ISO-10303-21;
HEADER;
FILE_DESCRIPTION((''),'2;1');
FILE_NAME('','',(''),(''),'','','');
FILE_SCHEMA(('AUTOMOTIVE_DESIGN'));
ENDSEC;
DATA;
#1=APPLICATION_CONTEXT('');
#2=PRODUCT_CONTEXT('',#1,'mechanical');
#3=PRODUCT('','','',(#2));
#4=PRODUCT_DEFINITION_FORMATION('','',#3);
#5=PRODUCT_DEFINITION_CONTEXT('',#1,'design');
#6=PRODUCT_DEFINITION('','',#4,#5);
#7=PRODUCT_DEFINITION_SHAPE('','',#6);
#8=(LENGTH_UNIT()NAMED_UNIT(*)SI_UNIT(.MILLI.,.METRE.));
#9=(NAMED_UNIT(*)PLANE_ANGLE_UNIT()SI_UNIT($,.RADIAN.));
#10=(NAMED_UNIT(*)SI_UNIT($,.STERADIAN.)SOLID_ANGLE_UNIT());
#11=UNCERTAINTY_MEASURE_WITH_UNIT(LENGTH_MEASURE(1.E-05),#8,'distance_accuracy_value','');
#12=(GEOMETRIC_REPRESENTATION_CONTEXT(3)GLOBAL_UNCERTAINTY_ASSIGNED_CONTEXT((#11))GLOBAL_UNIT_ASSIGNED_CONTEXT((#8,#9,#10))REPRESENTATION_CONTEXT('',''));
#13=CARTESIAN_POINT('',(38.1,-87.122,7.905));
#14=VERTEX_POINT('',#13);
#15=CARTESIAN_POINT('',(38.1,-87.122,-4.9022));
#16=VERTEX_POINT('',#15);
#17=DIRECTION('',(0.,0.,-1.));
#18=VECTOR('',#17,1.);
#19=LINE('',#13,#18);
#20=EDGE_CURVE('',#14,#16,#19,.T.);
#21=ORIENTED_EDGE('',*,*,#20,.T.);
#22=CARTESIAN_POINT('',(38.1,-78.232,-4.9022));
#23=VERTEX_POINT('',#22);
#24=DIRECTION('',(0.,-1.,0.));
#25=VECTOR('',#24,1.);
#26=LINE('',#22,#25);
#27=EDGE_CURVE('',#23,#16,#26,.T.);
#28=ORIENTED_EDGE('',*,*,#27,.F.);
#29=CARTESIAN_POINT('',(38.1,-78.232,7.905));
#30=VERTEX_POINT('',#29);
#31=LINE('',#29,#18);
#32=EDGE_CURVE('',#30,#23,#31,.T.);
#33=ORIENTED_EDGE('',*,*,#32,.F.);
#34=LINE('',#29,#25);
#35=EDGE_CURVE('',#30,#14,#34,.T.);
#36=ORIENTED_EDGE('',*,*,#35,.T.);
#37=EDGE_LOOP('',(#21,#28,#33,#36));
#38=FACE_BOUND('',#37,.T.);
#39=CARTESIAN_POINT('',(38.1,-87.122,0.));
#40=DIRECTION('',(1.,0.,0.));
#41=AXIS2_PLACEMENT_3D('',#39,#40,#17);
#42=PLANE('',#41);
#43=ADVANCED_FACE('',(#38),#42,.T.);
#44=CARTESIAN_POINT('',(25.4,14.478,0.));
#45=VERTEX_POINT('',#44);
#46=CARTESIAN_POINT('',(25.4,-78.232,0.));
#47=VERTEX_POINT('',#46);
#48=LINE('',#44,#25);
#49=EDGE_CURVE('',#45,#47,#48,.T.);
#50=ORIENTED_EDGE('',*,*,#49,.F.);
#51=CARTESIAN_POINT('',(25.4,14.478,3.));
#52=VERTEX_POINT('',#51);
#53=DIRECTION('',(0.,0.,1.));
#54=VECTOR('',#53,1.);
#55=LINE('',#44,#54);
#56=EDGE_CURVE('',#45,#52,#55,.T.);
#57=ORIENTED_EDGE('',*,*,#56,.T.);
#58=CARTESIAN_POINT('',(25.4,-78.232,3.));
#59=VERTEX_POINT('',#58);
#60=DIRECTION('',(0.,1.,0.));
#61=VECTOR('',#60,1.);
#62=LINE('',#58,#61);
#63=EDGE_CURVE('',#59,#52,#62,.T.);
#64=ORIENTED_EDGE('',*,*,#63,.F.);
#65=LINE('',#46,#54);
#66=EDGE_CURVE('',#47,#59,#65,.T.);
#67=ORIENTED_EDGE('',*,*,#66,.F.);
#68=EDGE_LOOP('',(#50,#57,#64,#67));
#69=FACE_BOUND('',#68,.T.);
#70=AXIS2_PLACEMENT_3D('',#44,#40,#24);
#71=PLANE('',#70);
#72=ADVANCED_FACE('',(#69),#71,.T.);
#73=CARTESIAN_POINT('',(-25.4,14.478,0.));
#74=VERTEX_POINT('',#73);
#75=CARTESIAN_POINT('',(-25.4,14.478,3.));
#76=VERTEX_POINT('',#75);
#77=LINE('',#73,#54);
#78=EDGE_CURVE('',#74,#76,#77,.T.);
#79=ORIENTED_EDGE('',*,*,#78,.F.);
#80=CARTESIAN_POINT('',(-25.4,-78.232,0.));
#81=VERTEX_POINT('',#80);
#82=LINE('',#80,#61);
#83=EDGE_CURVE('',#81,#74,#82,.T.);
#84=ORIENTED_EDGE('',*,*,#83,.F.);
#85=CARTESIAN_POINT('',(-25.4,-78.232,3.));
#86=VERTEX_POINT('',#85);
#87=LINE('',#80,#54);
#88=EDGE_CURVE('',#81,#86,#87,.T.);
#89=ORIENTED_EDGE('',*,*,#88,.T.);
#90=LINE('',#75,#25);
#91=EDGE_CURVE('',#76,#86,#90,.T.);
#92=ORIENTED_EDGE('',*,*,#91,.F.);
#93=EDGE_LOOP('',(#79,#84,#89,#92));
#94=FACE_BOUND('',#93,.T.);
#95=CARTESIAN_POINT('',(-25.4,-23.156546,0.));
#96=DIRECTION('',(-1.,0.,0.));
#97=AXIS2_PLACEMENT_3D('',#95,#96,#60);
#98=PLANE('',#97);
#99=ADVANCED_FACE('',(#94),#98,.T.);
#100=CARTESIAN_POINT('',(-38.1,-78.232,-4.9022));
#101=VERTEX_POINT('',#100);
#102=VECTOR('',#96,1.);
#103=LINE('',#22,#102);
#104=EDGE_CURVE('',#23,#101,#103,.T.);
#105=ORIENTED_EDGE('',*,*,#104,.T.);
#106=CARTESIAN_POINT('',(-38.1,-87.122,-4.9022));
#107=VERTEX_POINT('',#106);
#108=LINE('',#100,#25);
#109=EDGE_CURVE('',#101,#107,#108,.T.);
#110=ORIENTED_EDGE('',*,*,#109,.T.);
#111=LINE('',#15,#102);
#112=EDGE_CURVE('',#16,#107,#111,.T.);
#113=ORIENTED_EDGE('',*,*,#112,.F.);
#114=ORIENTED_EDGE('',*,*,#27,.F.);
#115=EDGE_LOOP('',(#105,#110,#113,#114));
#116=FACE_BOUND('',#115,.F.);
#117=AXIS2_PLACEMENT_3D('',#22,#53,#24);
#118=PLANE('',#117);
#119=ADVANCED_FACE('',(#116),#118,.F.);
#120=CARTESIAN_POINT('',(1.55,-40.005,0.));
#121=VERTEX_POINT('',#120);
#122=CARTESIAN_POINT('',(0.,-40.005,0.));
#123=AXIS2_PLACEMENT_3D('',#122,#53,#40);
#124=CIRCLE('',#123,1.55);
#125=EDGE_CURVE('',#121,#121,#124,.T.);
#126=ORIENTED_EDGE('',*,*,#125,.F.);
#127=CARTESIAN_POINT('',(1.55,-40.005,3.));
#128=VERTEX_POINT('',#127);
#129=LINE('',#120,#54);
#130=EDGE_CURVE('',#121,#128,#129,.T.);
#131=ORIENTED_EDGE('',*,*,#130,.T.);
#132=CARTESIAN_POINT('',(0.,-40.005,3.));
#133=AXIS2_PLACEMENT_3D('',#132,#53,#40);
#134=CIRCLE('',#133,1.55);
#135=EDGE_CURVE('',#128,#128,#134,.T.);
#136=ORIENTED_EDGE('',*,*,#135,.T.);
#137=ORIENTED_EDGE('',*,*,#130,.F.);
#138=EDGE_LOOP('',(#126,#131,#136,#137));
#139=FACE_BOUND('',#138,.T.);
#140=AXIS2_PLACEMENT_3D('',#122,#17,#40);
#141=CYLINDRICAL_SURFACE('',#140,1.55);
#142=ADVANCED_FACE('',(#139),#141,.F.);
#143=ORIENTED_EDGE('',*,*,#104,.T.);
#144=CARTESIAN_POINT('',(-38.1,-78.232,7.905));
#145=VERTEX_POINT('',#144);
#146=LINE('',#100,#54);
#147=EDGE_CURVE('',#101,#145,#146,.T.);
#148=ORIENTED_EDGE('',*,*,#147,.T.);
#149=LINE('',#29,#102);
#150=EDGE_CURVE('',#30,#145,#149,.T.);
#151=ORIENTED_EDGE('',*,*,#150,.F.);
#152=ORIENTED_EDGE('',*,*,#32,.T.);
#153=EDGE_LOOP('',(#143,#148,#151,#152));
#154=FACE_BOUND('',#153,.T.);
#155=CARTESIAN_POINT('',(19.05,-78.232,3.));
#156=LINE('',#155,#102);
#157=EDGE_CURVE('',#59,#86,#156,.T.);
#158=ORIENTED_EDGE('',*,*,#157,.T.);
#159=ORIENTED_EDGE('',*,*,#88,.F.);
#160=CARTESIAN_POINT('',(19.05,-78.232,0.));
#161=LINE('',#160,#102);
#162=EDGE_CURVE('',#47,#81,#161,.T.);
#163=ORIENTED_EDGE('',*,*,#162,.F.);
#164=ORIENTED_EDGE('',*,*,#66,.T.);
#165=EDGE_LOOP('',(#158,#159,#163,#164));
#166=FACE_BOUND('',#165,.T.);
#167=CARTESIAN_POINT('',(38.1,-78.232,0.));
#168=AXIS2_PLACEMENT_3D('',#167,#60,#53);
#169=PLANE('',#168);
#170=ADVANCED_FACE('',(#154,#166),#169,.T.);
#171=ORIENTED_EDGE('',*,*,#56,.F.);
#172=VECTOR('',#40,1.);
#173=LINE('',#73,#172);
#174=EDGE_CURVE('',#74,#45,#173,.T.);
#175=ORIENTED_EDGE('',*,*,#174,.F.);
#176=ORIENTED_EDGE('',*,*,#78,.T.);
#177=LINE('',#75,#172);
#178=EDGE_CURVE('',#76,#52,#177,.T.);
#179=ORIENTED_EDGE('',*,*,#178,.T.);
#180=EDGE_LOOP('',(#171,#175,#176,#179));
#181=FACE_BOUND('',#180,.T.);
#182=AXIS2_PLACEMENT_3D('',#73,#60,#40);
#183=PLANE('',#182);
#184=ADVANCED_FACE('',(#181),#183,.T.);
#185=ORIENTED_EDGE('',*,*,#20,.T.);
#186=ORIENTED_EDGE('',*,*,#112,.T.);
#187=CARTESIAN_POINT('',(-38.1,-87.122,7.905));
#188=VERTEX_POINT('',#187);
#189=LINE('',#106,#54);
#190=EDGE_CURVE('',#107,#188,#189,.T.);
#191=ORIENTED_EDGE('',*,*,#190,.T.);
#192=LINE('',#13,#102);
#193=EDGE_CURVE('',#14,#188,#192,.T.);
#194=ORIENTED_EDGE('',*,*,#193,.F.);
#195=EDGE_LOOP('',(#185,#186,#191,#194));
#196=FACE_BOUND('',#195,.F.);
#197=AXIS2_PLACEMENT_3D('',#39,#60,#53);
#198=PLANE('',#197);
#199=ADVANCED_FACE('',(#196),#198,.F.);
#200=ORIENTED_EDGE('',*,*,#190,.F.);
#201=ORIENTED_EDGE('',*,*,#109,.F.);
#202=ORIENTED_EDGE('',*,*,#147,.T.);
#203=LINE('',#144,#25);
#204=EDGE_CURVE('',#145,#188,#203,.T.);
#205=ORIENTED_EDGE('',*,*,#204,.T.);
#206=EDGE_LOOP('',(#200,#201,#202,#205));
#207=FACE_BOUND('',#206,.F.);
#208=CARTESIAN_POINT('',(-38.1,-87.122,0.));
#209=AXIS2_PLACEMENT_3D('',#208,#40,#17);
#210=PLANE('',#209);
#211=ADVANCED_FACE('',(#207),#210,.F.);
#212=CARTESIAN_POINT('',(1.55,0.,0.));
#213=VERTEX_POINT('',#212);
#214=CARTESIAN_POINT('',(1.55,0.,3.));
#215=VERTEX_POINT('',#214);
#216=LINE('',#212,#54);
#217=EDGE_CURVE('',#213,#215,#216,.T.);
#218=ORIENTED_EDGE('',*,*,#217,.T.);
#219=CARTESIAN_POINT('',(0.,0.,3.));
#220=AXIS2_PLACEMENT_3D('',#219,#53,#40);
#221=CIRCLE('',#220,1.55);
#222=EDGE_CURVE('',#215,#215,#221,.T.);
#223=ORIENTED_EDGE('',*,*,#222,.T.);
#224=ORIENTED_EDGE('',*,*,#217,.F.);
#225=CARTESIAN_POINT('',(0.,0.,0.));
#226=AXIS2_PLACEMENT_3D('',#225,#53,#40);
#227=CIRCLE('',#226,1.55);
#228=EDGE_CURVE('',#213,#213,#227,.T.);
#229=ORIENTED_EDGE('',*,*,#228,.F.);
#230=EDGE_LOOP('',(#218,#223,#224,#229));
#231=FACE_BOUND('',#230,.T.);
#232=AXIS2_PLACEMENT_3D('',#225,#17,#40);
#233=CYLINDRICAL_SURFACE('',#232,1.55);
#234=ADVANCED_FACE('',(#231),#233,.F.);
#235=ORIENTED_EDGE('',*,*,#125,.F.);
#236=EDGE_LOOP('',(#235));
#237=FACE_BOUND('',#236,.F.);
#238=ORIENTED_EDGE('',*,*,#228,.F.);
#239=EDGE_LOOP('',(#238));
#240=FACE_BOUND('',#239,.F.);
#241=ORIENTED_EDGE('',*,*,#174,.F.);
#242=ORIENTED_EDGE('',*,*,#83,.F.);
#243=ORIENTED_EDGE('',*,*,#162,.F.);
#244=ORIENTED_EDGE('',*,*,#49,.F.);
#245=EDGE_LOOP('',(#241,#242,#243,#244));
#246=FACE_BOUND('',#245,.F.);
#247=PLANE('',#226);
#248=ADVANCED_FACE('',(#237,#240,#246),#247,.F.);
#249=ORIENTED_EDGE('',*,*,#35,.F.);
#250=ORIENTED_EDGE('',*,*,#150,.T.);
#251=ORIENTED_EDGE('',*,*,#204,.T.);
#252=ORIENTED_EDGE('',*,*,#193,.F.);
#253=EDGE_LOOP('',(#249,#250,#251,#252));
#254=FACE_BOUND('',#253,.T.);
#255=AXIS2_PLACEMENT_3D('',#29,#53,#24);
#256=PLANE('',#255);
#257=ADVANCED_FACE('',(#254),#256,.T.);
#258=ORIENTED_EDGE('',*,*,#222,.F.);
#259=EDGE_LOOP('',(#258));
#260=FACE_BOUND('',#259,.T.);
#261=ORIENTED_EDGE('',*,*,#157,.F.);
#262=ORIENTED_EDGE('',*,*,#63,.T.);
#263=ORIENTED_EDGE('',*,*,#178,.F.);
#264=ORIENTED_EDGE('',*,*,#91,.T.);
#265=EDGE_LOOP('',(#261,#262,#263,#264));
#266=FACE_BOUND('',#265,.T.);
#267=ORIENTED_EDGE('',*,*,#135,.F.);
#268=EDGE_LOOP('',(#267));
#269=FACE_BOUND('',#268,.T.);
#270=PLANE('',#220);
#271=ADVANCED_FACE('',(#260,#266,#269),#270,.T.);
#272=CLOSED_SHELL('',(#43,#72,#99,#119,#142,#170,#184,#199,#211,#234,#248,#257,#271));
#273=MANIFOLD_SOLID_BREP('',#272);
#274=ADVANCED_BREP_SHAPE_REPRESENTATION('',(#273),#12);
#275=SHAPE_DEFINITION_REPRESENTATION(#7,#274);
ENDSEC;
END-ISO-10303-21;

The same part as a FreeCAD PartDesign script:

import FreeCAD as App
import Part
import Sketcher

V = App.Vector
Q = App.Units.Quantity

doc = App.newDocument("Part")
params = doc.addObject("Spreadsheet::Sheet", "Params")
for row, (alias, value) in enumerate([
    ("sketch1_width", "0.5 in"),
    ("sketch1_height", "0.35 in"),
    ("pad1_length", "0.1181102 in"),
    ("sketch2_width", "0.35 in"),
    ("pad2_length", "3 in"),
], start=1):
    params.set(f"A{row}", alias)
    params.set(f"B{row}", "=" + value)
    params.setAlias(f"B{row}", alias)

body = doc.addObject("PartDesign::Body", "Body")

# Sketch on XY plane
sketch1 = body.newObject("Sketcher::SketchObject", "Sketch")
sketch1.AttachmentSupport = (doc.getObject("XY_Plane"), [""])
sketch1.MapMode = "FlatFace"
sketch1.addGeometry(Part.LineSegment(V(-25.4, 14.478, 0), V(-25.4, -78.232, 0)), False)
sketch1.addGeometry(Part.LineSegment(V(-25.4, -78.232, 0), V(-38.1, -78.232, 0)), False)
sketch1.addGeometry(Part.LineSegment(V(-38.1, -78.232, 0), V(-38.1, -87.122, 0)), False)
sketch1.addGeometry(Part.LineSegment(V(-38.1, -87.122, 0), V(38.1, -87.122, 0)), False)
sketch1.addGeometry(Part.LineSegment(V(38.1, -87.122, 0), V(38.1, -78.232, 0)), False)
sketch1.addGeometry(Part.LineSegment(V(38.1, -78.232, 0), V(25.4, -78.232, 0)), False)
sketch1.addGeometry(Part.LineSegment(V(25.4, -78.232, 0), V(25.4, 14.478, 0)), False)
sketch1.addGeometry(Part.LineSegment(V(25.4, 14.478, 0), V(-25.4, 14.478, 0)), False)
sketch1.addGeometry(Part.Circle(V(0, 0, 0), V(0, 0, 1), 1.55), False)
sketch1.addGeometry(Part.Circle(V(0, -40.005, 0), V(0, 0, 1), 1.55), False)
sketch1.addConstraint(Sketcher.Constraint("Coincident", 0, 2, 1, 1))
sketch1.addConstraint(Sketcher.Constraint("Coincident", 1, 2, 2, 1))
sketch1.addConstraint(Sketcher.Constraint("Coincident", 2, 2, 3, 1))
sketch1.addConstraint(Sketcher.Constraint("Coincident", 3, 2, 4, 1))
sketch1.addConstraint(Sketcher.Constraint("Coincident", 4, 2, 5, 1))
sketch1.addConstraint(Sketcher.Constraint("Coincident", 5, 2, 6, 1))
sketch1.addConstraint(Sketcher.Constraint("Coincident", 6, 2, 7, 1))
sketch1.addConstraint(Sketcher.Constraint("Coincident", 7, 2, 0, 1))
sketch1.addConstraint(Sketcher.Constraint("Vertical", 0))
sketch1.addConstraint(Sketcher.Constraint("Horizontal", 1))
sketch1.addConstraint(Sketcher.Constraint("Vertical", 2))
sketch1.addConstraint(Sketcher.Constraint("Horizontal", 3))
sketch1.addConstraint(Sketcher.Constraint("Vertical", 4))
sketch1.addConstraint(Sketcher.Constraint("Horizontal", 5))
sketch1.addConstraint(Sketcher.Constraint("Vertical", 6))
sketch1.addConstraint(Sketcher.Constraint("Horizontal", 7))
sketch1.addConstraint(Sketcher.Constraint("Coincident", 8, 3, -1, 1))
sketch1.addConstraint(Sketcher.Constraint("Equal", 8, 9))
sketch1.addConstraint(Sketcher.Constraint("Symmetric", 1, 2, 4, 2, -2))
sketch1.addConstraint(Sketcher.Constraint("PointOnObject", 9, 3, -2))
sketch1.addConstraint(Sketcher.Constraint("Equal", 1, 5))
sketch1.addConstraint(Sketcher.Constraint("DistanceX", 1, 2, 1, 1, Q("0.5 in")))
sketch1.addConstraint(Sketcher.Constraint("DistanceX", 0, 2, -1, 1, Q("1 in")))
sketch1.addConstraint(Sketcher.Constraint("DistanceY", 3, 2, 6, 2, Q("4 in")))
sketch1.addConstraint(Sketcher.Constraint("DistanceY", 2, 2, 2, 1, Q("0.35 in")))
sketch1.addConstraint(Sketcher.Constraint("Diameter", 8, 3.1))
sketch1.addConstraint(Sketcher.Constraint("DistanceY", -1, 1, 6, 2, Q("0.57 in")))
sketch1.addConstraint(Sketcher.Constraint("DistanceY", 9, 3, -1, 1, Q("1.575 in")))
sketch1.setExpression("Constraints[21]", "Params.sketch1_width")
sketch1.setExpression("Constraints[24]", "Params.sketch1_height")
pad1 = body.newObject("PartDesign::Pad", "Pad")
pad1.Profile = sketch1
pad1.setExpression("Length", "Params.pad1_length")

# Sketch on YZ plane
sketch2 = body.newObject("Sketcher::SketchObject", "Sketch001")
sketch2.AttachmentSupport = (doc.getObject("YZ_Plane"), [""])
sketch2.MapMode = "FlatFace"
sketch2.AttachmentOffset = App.Placement(V(0, 0, 1.5 * 25.4), App.Rotation())
sketch2.addGeometry(Part.LineSegment(V(-87.122, -4.9022, 0), V(-78.232, -4.9022, 0)), False)
sketch2.addGeometry(Part.LineSegment(V(-78.232, -4.9022, 0), V(-78.232, 7.905, 0)), False)
sketch2.addGeometry(Part.LineSegment(V(-78.232, 7.905, 0), V(-87.122, 7.905, 0)), False)
sketch2.addGeometry(Part.LineSegment(V(-87.122, 7.905, 0), V(-87.122, -4.9022, 0)), False)
sketch2.addConstraint(Sketcher.Constraint("Coincident", 0, 2, 1, 1))
sketch2.addConstraint(Sketcher.Constraint("Coincident", 1, 2, 2, 1))
sketch2.addConstraint(Sketcher.Constraint("Coincident", 2, 2, 3, 1))
sketch2.addConstraint(Sketcher.Constraint("Coincident", 3, 2, 0, 1))
sketch2.addConstraint(Sketcher.Constraint("Horizontal", 0))
sketch2.addConstraint(Sketcher.Constraint("Vertical", 1))
sketch2.addConstraint(Sketcher.Constraint("Horizontal", 2))
sketch2.addConstraint(Sketcher.Constraint("Vertical", 3))
sketch2.addConstraint(Sketcher.Constraint("DistanceX", 0, 1, 0, 2, Q("0.35 in")))
sketch2.addConstraint(Sketcher.Constraint("DistanceY", 0, 2, -1, 1, Q("0.193 in")))
sketch2.addConstraint(Sketcher.Constraint("DistanceX", 0, 2, -1, 1, Q("3.08 in")))
sketch2.addConstraint(Sketcher.Constraint("DistanceY", 1, 1, 1, 2, 12.8072))
sketch2.setExpression("Constraints[8]", "Params.sketch2_width")
pad2 = body.newObject("PartDesign::Pad", "Pad001")
pad2.Profile = sketch2
pad2.setExpression("Length", "Params.pad2_length")
pad2.Reversed = True

doc.recompute()
